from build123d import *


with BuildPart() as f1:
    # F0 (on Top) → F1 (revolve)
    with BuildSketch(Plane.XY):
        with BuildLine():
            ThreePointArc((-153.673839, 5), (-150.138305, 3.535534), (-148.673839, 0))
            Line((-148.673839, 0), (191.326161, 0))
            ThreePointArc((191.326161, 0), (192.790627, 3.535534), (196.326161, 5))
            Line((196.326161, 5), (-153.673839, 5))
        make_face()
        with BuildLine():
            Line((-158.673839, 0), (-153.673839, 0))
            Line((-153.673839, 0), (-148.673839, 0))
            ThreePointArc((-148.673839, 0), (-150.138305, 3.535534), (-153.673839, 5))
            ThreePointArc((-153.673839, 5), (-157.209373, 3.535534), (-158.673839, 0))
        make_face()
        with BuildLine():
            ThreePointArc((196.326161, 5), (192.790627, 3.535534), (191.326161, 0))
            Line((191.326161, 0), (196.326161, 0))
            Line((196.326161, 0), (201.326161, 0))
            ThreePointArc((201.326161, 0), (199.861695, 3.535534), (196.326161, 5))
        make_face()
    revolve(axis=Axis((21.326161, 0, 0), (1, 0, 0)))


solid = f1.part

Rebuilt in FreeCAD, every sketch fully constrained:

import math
import FreeCAD as App
import Part
import Sketcher
Q = App.Units.Quantity

doc = App.newDocument("Part")
body = doc.addObject("PartDesign::Body", "Body")

sketch1 = body.newObject("Sketcher::SketchObject", "Sketch")
sketch1.AttachmentSupport = (doc.getObject("XY_Plane"), [""])
sketch1.MapMode = "FlatFace"
sketch1.addGeometry([
    Part.LineSegment(App.Vector(196.3, 5, 0), App.Vector(-153.7, 5, 0)),
    Part.ArcOfCircle(Part.Circle(App.Vector(-153.7, 0, 0), App.Vector(0, 0, 1), 5), math.radians(90), math.radians(180)),
    Part.LineSegment(App.Vector(-158.7, 0, 0), App.Vector(201.3, 0, 0)),
    Part.ArcOfCircle(Part.Circle(App.Vector(196.3, 0, 0), App.Vector(0, 0, 1), 5), math.radians(0), math.radians(90)),
], False)
sketch1.addConstraint([
    Sketcher.Constraint("Tangent", 0, 2, 1, 1),
    Sketcher.Constraint("Coincident", 1, 2, 2, 1),
    Sketcher.Constraint("Coincident", 2, 2, 3, 1),
    Sketcher.Constraint("Tangent", 3, 2, 0, 1),
    Sketcher.Constraint("Horizontal", 0),
    Sketcher.Constraint("Horizontal", 2),
    Sketcher.Constraint("Equal", 1, 3),
    Sketcher.Constraint("PointOnObject", 1, 3, -1),
    Sketcher.Constraint("PointOnObject", 1, 2, -1),
    Sketcher.Constraint("Radius", 1, Q("5 mm")),
    Sketcher.Constraint("DistanceX", 0, 2, 0, 1, Q("350 mm")),
    Sketcher.Constraint("DistanceX", 1, 3, -1, 1, Q("153.673839 mm")),
])
revolution = body.newObject("PartDesign::Revolution", "Revolution")
revolution.Profile = sketch1
revolution.ReferenceAxis = (sketch1, ["H_Axis"])
revolution.Angle = 360

doc.recompute()
